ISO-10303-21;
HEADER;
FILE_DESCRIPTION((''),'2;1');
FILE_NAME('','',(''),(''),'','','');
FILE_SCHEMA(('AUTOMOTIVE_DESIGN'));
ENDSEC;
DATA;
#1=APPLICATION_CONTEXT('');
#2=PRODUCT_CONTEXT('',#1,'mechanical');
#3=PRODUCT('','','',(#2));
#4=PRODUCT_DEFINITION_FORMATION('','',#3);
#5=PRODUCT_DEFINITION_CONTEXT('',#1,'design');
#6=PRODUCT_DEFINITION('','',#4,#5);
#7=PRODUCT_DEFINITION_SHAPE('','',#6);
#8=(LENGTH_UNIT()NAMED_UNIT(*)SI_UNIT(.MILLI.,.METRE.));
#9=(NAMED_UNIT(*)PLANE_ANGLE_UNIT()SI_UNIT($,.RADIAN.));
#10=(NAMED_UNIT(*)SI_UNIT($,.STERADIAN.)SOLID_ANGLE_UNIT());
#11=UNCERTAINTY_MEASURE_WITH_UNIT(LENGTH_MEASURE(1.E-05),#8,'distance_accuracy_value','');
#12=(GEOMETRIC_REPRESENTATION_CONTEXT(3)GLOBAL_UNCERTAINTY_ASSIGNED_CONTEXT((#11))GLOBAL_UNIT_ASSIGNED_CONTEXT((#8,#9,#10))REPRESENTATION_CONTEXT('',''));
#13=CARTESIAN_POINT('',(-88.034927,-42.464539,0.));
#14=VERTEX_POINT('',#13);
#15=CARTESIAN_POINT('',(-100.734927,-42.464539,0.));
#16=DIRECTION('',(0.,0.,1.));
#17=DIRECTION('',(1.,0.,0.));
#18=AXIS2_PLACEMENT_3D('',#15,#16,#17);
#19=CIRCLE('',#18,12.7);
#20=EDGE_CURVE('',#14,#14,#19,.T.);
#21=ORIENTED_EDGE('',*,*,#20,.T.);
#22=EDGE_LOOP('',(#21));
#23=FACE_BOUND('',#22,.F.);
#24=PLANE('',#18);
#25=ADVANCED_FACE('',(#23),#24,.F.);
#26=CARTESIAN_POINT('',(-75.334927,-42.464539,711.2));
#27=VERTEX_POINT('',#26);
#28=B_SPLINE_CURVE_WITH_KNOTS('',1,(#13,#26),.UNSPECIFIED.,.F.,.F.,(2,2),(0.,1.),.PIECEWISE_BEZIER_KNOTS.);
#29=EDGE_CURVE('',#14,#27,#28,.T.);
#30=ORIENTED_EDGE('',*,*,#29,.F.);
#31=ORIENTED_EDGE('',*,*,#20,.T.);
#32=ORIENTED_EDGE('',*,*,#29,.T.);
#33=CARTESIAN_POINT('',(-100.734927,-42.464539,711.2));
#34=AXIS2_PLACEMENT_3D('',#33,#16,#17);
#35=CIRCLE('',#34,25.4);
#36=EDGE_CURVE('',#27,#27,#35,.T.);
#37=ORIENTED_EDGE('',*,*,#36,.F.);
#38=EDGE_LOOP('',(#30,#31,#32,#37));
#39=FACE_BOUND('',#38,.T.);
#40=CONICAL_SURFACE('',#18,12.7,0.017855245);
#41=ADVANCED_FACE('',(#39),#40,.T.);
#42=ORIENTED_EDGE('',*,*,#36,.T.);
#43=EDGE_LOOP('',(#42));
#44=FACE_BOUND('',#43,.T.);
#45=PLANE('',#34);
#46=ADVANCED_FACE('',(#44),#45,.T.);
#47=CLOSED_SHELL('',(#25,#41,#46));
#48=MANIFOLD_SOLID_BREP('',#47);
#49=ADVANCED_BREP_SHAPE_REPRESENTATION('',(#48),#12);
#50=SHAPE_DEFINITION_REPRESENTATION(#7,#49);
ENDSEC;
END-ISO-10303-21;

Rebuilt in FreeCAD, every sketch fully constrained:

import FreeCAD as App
import Part
import Sketcher

V = App.Vector
Q = App.Units.Quantity

doc = App.newDocument("Part")
body = doc.addObject("PartDesign::Body", "Body")

# Sketch on XY plane
sketch1 = body.newObject("Sketcher::SketchObject", "Sketch")
sketch1.AttachmentSupport = (doc.getObject("XY_Plane"), [""])
sketch1.MapMode = "FlatFace"
sketch1.addGeometry(Part.Circle(V(-101, -42, 0), V(0, 0, 1), 13), False)
sketch1.addConstraint([
    Sketcher.Constraint("Diameter", 0, Q("1 in")),
    Sketcher.Constraint("DistanceY", 0, 3, -1, 1, Q("42.464539 mm")),
    Sketcher.Constraint("DistanceX", 0, 3, -1, 1, Q("100.734927 mm")),
])

# Sketch on XY plane
sketch2 = body.newObject("Sketcher::SketchObject", "Sketch001")
sketch2.AttachmentSupport = (doc.getObject("XY_Plane"), [""])
sketch2.MapMode = "FlatFace"
sketch2.AttachmentOffset = App.Placement(V(0, 0, 28 * 25.4), App.Rotation())
sketch2.addGeometry(Part.Circle(V(-101, -42, 0), V(0, 0, 1), 25), False)
sketch2.addConstraint([
    Sketcher.Constraint("Diameter", 0, Q("2 in")),
    Sketcher.Constraint("DistanceY", 0, 3, -1, 1, Q("42.464539 mm")),
    Sketcher.Constraint("DistanceX", 0, 3, -1, 1, Q("100.734927 mm")),
])

additiveloft = body.newObject("PartDesign::AdditiveLoft", "AdditiveLoft")
additiveloft.Profile = sketch1
additiveloft.Sections = [sketch2]

doc.recompute()
